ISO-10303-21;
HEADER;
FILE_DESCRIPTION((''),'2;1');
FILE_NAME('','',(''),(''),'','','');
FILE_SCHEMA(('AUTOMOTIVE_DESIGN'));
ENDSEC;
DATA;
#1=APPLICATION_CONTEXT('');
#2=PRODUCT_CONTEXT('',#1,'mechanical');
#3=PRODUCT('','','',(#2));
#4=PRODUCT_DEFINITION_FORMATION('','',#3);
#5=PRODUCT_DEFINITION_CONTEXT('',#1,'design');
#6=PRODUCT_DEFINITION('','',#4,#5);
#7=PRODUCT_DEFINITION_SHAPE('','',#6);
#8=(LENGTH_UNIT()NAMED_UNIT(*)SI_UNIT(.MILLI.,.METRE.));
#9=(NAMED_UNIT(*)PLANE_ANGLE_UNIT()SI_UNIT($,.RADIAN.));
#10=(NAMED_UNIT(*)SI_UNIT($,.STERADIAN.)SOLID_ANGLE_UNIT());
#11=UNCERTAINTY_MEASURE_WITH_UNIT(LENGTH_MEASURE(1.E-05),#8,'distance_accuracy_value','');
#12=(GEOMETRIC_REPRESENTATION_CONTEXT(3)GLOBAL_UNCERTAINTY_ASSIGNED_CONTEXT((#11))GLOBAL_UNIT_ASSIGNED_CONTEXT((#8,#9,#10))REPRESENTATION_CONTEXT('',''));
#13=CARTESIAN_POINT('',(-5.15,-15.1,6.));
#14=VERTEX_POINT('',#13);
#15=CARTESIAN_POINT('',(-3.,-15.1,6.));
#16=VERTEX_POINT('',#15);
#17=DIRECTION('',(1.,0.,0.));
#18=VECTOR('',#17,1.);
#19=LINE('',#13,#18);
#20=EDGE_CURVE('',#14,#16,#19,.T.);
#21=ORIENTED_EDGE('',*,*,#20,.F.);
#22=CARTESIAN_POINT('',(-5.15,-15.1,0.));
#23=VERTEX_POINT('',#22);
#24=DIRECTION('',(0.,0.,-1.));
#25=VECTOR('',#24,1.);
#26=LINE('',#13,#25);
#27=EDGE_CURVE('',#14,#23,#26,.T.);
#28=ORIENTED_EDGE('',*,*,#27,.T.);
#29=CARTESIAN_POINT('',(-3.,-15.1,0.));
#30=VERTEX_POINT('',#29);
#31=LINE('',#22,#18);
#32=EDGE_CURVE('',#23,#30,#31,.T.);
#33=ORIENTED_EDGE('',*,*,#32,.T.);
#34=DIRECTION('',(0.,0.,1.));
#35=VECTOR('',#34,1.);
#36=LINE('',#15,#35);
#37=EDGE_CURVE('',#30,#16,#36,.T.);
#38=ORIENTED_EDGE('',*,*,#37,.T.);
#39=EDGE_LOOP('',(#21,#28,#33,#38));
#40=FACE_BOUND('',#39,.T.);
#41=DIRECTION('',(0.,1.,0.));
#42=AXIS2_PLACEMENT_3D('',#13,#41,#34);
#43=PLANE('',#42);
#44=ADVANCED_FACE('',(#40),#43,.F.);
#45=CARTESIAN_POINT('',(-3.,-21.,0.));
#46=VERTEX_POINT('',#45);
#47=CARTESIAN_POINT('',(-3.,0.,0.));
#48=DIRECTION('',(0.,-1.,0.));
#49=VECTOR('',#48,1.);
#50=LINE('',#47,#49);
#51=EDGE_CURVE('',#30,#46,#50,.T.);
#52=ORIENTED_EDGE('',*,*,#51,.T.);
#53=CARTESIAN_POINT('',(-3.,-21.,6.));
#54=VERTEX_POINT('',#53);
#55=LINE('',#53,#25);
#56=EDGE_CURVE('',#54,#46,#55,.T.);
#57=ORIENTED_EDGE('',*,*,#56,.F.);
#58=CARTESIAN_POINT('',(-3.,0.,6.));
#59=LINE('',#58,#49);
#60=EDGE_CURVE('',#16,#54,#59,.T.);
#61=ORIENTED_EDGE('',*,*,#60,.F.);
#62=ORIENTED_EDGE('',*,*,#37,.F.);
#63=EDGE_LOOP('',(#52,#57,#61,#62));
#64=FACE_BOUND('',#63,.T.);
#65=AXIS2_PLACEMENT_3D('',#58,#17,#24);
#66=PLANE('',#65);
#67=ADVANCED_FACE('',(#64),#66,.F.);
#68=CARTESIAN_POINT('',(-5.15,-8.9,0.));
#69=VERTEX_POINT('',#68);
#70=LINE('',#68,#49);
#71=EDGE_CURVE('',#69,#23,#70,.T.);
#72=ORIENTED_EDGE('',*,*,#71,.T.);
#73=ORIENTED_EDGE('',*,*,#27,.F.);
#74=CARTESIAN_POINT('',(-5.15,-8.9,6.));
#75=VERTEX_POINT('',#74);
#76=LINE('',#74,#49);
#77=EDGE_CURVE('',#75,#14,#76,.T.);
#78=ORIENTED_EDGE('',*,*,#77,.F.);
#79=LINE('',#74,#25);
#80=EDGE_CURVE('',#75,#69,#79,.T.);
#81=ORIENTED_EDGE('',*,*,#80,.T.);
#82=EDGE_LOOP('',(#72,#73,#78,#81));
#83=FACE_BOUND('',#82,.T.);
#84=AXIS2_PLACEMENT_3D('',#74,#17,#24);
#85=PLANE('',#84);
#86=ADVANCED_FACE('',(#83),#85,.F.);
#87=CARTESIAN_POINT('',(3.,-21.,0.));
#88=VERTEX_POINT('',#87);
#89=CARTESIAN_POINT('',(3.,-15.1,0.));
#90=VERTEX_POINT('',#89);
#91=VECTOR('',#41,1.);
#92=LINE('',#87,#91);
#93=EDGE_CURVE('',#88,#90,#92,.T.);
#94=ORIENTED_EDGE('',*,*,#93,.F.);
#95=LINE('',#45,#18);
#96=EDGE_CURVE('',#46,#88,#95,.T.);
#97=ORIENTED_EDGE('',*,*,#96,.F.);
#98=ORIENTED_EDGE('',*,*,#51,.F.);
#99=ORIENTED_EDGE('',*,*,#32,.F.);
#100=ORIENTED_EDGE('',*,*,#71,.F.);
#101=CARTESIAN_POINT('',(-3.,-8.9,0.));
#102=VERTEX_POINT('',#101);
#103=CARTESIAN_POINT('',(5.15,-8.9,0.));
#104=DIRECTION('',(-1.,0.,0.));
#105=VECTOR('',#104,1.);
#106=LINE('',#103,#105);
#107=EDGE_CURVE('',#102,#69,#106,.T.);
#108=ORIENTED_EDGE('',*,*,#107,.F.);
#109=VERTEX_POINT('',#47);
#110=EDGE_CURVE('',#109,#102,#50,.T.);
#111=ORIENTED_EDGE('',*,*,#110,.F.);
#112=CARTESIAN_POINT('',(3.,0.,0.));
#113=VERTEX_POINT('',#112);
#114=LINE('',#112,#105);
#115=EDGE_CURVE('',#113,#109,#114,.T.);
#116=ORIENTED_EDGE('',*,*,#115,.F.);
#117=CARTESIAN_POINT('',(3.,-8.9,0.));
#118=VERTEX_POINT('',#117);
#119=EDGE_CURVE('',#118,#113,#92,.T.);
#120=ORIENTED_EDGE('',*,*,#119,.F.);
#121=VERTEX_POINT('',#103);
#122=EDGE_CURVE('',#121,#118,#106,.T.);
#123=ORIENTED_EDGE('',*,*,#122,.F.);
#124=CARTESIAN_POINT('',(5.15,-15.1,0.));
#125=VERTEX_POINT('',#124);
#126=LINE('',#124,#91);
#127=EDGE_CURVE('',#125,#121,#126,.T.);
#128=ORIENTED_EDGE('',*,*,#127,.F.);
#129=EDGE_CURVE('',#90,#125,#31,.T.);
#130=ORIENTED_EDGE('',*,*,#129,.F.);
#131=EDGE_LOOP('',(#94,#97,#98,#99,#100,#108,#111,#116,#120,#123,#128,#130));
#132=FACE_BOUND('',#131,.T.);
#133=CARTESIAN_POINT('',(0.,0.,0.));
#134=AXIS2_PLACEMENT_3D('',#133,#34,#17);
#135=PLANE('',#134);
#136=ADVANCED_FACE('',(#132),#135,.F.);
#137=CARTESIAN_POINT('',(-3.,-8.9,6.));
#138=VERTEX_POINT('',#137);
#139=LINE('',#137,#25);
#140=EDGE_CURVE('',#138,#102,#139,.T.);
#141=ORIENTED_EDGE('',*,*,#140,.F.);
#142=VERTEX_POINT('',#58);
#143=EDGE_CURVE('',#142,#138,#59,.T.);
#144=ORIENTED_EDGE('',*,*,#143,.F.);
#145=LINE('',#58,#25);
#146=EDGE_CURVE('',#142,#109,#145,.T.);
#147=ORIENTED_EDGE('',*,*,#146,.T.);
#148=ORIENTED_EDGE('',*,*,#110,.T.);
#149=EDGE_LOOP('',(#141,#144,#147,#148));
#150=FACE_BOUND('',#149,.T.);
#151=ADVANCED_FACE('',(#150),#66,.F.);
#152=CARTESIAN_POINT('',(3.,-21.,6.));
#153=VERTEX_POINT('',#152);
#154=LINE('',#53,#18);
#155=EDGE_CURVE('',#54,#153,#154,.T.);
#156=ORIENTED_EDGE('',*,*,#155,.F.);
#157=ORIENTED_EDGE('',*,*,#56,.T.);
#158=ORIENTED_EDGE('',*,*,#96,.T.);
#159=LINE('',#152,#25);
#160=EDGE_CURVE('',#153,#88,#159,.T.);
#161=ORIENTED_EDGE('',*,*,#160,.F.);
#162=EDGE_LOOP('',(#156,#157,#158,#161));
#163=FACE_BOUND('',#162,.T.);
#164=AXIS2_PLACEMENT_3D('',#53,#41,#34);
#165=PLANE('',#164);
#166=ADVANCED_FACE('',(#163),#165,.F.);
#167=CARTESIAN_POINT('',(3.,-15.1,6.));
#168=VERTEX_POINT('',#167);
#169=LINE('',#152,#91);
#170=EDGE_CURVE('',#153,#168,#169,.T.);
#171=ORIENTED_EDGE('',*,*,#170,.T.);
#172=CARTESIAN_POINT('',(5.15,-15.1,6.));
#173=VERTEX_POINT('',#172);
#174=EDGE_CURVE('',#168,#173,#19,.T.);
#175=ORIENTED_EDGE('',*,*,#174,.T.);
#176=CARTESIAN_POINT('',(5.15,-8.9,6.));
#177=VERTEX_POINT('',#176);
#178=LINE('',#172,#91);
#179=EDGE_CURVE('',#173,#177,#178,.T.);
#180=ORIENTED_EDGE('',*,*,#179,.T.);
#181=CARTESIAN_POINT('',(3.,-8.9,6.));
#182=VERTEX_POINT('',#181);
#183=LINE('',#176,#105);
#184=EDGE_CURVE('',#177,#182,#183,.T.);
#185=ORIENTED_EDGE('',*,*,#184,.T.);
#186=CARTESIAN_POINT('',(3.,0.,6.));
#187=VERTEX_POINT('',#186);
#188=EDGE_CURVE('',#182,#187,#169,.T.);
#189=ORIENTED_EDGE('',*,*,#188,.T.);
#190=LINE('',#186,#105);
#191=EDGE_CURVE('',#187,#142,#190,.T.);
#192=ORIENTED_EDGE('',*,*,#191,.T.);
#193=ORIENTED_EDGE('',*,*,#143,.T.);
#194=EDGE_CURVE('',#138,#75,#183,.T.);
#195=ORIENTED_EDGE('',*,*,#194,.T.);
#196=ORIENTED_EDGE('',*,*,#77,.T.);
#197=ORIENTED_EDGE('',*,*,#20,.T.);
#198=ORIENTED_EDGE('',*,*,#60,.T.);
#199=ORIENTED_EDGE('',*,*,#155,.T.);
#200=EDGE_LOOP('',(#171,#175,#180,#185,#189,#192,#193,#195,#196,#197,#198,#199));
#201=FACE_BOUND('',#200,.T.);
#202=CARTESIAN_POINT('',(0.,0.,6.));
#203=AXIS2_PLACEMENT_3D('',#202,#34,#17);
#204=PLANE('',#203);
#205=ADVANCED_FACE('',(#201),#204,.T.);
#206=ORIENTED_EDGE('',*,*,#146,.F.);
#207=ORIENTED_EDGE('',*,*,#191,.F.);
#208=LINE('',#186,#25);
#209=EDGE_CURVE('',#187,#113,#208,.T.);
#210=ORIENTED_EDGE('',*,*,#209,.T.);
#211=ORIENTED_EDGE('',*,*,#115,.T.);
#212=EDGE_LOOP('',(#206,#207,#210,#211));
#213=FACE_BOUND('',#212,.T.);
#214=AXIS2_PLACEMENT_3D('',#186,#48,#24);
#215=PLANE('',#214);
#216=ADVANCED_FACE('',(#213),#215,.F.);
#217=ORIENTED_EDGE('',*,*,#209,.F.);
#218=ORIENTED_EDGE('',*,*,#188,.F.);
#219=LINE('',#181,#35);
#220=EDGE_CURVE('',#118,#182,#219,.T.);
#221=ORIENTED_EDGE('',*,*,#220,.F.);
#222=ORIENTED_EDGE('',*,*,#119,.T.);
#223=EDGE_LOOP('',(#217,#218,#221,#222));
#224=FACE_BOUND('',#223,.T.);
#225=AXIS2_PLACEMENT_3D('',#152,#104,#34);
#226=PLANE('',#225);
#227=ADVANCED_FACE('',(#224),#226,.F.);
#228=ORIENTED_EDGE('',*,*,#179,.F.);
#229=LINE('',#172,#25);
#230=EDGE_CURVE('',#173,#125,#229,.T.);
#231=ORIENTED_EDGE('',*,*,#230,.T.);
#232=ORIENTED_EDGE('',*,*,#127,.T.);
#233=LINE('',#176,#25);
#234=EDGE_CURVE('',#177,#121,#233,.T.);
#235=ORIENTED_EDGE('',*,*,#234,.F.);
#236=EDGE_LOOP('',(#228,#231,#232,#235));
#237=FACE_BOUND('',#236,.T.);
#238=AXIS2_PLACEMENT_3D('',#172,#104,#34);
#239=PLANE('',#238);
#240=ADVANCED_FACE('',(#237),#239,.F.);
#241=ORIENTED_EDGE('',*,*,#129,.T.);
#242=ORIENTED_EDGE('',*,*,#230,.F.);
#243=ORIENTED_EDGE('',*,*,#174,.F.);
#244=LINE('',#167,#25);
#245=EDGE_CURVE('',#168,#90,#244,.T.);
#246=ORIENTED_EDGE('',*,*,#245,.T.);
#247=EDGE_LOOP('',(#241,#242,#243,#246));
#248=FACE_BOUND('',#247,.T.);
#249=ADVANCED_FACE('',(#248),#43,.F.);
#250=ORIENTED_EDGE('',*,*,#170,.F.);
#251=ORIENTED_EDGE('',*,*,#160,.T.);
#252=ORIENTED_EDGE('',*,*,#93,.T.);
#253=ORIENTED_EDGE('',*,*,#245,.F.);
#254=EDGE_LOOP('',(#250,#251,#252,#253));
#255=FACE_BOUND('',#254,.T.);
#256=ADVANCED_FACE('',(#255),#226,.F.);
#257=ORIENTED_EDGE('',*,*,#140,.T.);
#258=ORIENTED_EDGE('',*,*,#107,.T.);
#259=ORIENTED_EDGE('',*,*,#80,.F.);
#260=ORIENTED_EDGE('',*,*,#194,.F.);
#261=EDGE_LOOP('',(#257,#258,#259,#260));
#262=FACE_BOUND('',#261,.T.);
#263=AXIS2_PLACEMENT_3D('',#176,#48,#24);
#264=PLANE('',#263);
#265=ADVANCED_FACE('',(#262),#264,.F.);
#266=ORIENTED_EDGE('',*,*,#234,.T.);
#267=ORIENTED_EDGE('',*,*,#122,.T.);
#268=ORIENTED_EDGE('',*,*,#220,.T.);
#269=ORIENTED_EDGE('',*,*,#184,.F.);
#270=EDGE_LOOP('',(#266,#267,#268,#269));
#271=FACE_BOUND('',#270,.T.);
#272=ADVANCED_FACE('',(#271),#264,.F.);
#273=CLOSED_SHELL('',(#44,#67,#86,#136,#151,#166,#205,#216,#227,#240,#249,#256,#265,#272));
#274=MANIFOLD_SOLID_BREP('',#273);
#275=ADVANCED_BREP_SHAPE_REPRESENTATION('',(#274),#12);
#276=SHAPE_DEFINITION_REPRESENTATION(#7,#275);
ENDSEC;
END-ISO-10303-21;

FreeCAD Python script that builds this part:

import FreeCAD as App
import Part
import Sketcher

V = App.Vector
Q = App.Units.Quantity


def add_polygon(sketch, points):
    """Adds a closed chain of lines whose ends are joined by coincident constraints."""
    first, n = sketch.GeometryCount, len(points)
    for a, b in zip(points, points[1:] + points[:1]):
        sketch.addGeometry(Part.LineSegment(App.Vector(*a, 0), App.Vector(*b, 0)), False)
    for i in range(n):
        sketch.addConstraint(Sketcher.Constraint("Coincident", first + i, 2, first + (i + 1) % n, 1))

doc = App.newDocument("Part")
body = doc.addObject("PartDesign::Body", "Body")

# Sketch on XY plane
sketch1 = body.newObject("Sketcher::SketchObject", "Sketch")
sketch1.AttachmentSupport = (doc.getObject("XY_Plane"), [""])
sketch1.MapMode = "FlatFace"
add_polygon(sketch1, [(-3, 0), (-3, -21), (3, -21), (3, 0)])  # lines 0-3
sketch1.addConstraint([
    Sketcher.Constraint("Vertical", 0),
    Sketcher.Constraint("Horizontal", 1),
    Sketcher.Constraint("Vertical", 2),
    Sketcher.Constraint("Horizontal", 3),
    Sketcher.Constraint("Symmetric", 2, 2, 3, 2, -1, 1),
    Sketcher.Constraint("DistanceX", 1, 1, 1, 2, Q("6 mm")),
    Sketcher.Constraint("DistanceY", 0, 2, 0, 1, Q("21 mm")),
])
pad1 = body.newObject("PartDesign::Pad", "Pad")
pad1.Profile = sketch1
pad1.Length = 6

# Sketch on XY plane
sketch2 = body.newObject("Sketcher::SketchObject", "Sketch001")
sketch2.AttachmentSupport = (doc.getObject("XY_Plane"), [""])
sketch2.MapMode = "FlatFace"
add_polygon(sketch2, [(-5.15, -8.9), (-5.15, -15.1), (5.15, -15.1), (5.15, -8.9)])  # lines 0-3
sketch2.addConstraint([
    Sketcher.Constraint("Vertical", 0),
    Sketcher.Constraint("Horizontal", 1),
    Sketcher.Constraint("Vertical", 2),
    Sketcher.Constraint("Horizontal", 3),
    Sketcher.Constraint("DistanceX", 1, 1, 1, 2, Q("10.3 mm")),
    Sketcher.Constraint("DistanceY", 0, 2, 0, 1, Q("6.2 mm")),
    Sketcher.Constraint("DistanceY", 0, 2, -1, 1, Q("15.1 mm")),
    Sketcher.Constraint("DistanceX", 0, 2, -1, 1, Q("5.15 mm")),
])
pad2 = body.newObject("PartDesign::Pad", "Pad001")
pad2.Profile = sketch2
pad2.Length = 6

doc.recompute()
